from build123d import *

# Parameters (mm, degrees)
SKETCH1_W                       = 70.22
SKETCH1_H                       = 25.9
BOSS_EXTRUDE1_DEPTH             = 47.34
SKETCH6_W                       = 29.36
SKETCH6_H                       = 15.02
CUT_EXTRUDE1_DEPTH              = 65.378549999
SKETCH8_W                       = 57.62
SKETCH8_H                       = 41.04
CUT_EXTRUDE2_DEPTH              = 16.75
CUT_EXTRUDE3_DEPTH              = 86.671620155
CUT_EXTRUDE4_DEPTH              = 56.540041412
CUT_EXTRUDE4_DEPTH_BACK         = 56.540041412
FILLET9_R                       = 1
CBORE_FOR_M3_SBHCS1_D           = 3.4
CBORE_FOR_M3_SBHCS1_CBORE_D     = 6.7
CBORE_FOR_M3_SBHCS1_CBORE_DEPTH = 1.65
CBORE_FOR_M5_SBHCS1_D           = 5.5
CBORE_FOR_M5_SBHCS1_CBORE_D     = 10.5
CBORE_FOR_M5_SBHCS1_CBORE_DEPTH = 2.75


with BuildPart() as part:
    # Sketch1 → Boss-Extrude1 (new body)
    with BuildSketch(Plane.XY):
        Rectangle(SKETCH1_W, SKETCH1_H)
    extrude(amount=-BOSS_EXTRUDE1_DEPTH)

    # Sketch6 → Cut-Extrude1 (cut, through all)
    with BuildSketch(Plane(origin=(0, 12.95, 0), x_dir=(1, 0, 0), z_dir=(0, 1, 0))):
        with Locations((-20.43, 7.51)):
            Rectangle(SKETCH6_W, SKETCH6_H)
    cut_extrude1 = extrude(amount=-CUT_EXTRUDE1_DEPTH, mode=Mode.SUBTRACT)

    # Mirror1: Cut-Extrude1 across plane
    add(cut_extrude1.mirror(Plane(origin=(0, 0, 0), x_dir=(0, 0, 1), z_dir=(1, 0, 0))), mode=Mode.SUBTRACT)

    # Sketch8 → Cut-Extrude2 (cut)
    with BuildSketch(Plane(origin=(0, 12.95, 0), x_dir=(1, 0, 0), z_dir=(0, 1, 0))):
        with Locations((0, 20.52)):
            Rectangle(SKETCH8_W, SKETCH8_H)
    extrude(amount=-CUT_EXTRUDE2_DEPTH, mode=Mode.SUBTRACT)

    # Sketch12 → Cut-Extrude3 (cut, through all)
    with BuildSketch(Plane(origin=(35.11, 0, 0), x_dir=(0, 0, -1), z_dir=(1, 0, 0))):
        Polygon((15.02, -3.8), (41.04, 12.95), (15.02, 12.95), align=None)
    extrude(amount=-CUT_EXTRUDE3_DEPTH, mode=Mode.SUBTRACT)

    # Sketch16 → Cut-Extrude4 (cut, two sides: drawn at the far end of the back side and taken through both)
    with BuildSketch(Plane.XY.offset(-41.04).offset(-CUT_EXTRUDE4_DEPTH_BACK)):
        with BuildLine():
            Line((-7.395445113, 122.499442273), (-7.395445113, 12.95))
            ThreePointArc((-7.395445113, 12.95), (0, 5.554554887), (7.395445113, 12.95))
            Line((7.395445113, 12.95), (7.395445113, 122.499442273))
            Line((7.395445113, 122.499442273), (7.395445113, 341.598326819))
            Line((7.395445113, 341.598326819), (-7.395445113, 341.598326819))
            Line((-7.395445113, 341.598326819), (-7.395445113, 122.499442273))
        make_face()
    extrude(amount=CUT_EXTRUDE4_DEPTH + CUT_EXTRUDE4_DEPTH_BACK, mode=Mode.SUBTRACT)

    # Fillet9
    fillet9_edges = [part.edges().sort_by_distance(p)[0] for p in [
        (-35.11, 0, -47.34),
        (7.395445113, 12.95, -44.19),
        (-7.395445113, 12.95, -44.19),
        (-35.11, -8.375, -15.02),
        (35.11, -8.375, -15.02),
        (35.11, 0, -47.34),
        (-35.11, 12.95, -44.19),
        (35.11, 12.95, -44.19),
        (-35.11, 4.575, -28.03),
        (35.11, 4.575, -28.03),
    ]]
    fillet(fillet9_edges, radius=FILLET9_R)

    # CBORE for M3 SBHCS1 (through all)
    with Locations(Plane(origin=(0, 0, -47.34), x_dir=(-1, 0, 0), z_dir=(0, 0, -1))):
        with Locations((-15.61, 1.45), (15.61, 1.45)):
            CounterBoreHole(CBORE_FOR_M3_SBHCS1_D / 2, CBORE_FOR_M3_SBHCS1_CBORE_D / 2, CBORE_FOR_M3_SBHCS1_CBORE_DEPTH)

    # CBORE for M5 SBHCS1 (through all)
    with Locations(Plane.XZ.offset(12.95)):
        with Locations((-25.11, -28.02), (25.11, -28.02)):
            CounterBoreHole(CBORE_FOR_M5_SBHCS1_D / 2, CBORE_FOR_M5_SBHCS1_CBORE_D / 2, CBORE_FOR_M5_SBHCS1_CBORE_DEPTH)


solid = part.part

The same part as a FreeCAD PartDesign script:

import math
import FreeCAD as App
import Part
import Sketcher
from FreeCAD import Vector
Q = App.Units.Quantity


def edges_at(feature, points):
    """Names of the edges that pass closest to the given points."""
    edges = feature.Shape.Edges
    near = lambda p: min(range(len(edges)), key=lambda i: edges[i].distToShape(Part.Vertex(*p))[0])
    return sorted({f"Edge{near(p) + 1}" for p in points})

doc = App.newDocument("Part")
body = doc.addObject("PartDesign::Body", "Body")

# Sketch on XY plane
sketch1 = doc.addObject("Sketcher::SketchObject", "Sketch")
body.addObject(sketch1)
sketch1.AttachmentSupport = (doc.XY_Plane, [""])
sketch1.MapMode = "FlatFace"
sketch1.addGeometry(Part.LineSegment(Vector(-35.11, 12.95, 0), Vector(-35.11, -12.95, 0)), False)
sketch1.addGeometry(Part.LineSegment(Vector(-35.11, -12.95, 0), Vector(35.11, -12.95, 0)), False)
sketch1.addGeometry(Part.LineSegment(Vector(35.11, -12.95, 0), Vector(35.11, 12.95, 0)), False)
sketch1.addGeometry(Part.LineSegment(Vector(35.11, 12.95, 0), Vector(-35.11, 12.95, 0)), False)
sketch1.addConstraint(Sketcher.Constraint("Coincident", 0, 2, 1, 1))
sketch1.addConstraint(Sketcher.Constraint("Coincident", 1, 2, 2, 1))
sketch1.addConstraint(Sketcher.Constraint("Coincident", 2, 2, 3, 1))
sketch1.addConstraint(Sketcher.Constraint("Coincident", 3, 2, 0, 1))
sketch1.addConstraint(Sketcher.Constraint("Vertical", 0))
sketch1.addConstraint(Sketcher.Constraint("Horizontal", 1))
sketch1.addConstraint(Sketcher.Constraint("Vertical", 2))
sketch1.addConstraint(Sketcher.Constraint("Horizontal", 3))
sketch1.addConstraint(Sketcher.Constraint("Symmetric", 0, 2, 2, 2, -1, 1))
sketch1.addConstraint(Sketcher.Constraint("DistanceY", 0, 2, 0, 1, Q("25.9 mm")))
sketch1.addConstraint(Sketcher.Constraint("DistanceX", 1, 1, 1, 2, Q("70.22 mm")))
pad1 = doc.addObject("PartDesign::Pad", "Pad")
body.addObject(pad1)
pad1.Profile = sketch1
pad1.Length = 47.34
pad1.Reversed = True

# Sketch on XZ plane
sketch2 = doc.addObject("Sketcher::SketchObject", "Sketch001")
body.addObject(sketch2)
sketch2.AttachmentSupport = (doc.XZ_Plane, [""])
sketch2.MapMode = "FlatFace"
sketch2.AttachmentOffset = App.Placement(Vector(0, 0, -12.95), App.Rotation())
sketch2.addGeometry(Part.LineSegment(Vector(-35.11, -15.02, 0), Vector(-35.11, 0, 0)), False)
sketch2.addGeometry(Part.LineSegment(Vector(-35.11, 0, 0), Vector(-5.75, 0, 0)), False)
sketch2.addGeometry(Part.LineSegment(Vector(-5.75, 0, 0), Vector(-5.75, -15.02, 0)), False)
sketch2.addGeometry(Part.LineSegment(Vector(-5.75, -15.02, 0), Vector(-35.11, -15.02, 0)), False)
sketch2.addConstraint(Sketcher.Constraint("Coincident", 0, 2, 1, 1))
sketch2.addConstraint(Sketcher.Constraint("Coincident", 1, 2, 2, 1))
sketch2.addConstraint(Sketcher.Constraint("Coincident", 2, 2, 3, 1))
sketch2.addConstraint(Sketcher.Constraint("Coincident", 3, 2, 0, 1))
sketch2.addConstraint(Sketcher.Constraint("Vertical", 0))
sketch2.addConstraint(Sketcher.Constraint("Horizontal", 1))
sketch2.addConstraint(Sketcher.Constraint("Vertical", 2))
sketch2.addConstraint(Sketcher.Constraint("Horizontal", 3))
sketch2.addConstraint(Sketcher.Constraint("PointOnObject", 0, 2, -1))
sketch2.addConstraint(Sketcher.Constraint("DistanceX", 1, 1, 1, 2, Q("29.36 mm")))
sketch2.addConstraint(Sketcher.Constraint("DistanceY", 0, 1, 0, 2, Q("15.02 mm")))
sketch2.addConstraint(Sketcher.Constraint("DistanceX", 0, 2, -1, 1, Q("35.11 mm")))
pocket1 = doc.addObject("PartDesign::Pocket", "Pocket")
body.addObject(pocket1)
pocket1.Profile = sketch2
pocket1.Type = "ThroughAll"
pocket1.Reversed = True
doc.recompute()

mirrored = doc.addObject("PartDesign::Mirrored", "Mirrored")
body.addObject(mirrored)
mirrored.Originals = [pocket1]
mirrored.MirrorPlane = (doc.YZ_Plane, [""])
body.Tip = mirrored

# Sketch on XZ plane
sketch3 = doc.addObject("Sketcher::SketchObject", "Sketch002")
body.addObject(sketch3)
sketch3.AttachmentSupport = (doc.XZ_Plane, [""])
sketch3.MapMode = "FlatFace"
sketch3.AttachmentOffset = App.Placement(Vector(0, 0, -12.95), App.Rotation())
sketch3.addGeometry(Part.LineSegment(Vector(-28.81, -41.04, 0), Vector(-28.81, 0, 0)), False)
sketch3.addGeometry(Part.LineSegment(Vector(-28.81, 0, 0), Vector(28.81, 0, 0)), False)
sketch3.addGeometry(Part.LineSegment(Vector(28.81, 0, 0), Vector(28.81, -41.04, 0)), False)
sketch3.addGeometry(Part.LineSegment(Vector(28.81, -41.04, 0), Vector(-28.81, -41.04, 0)), False)
sketch3.addConstraint(Sketcher.Constraint("Coincident", 0, 2, 1, 1))
sketch3.addConstraint(Sketcher.Constraint("Coincident", 1, 2, 2, 1))
sketch3.addConstraint(Sketcher.Constraint("Coincident", 2, 2, 3, 1))
sketch3.addConstraint(Sketcher.Constraint("Coincident", 3, 2, 0, 1))
sketch3.addConstraint(Sketcher.Constraint("Vertical", 0))
sketch3.addConstraint(Sketcher.Constraint("Horizontal", 1))
sketch3.addConstraint(Sketcher.Constraint("Vertical", 2))
sketch3.addConstraint(Sketcher.Constraint("Horizontal", 3))
sketch3.addConstraint(Sketcher.Constraint("Symmetric", 0, 2, 1, 2, -1, 1))
sketch3.addConstraint(Sketcher.Constraint("DistanceX", 1, 1, 1, 2, Q("57.62 mm")))
sketch3.addConstraint(Sketcher.Constraint("DistanceY", 0, 1, 0, 2, Q("41.04 mm")))
pocket2 = doc.addObject("PartDesign::Pocket", "Pocket001")
body.addObject(pocket2)
pocket2.Profile = sketch3
pocket2.Length = 16.75
pocket2.Reversed = True

# Sketch on YZ plane
sketch4 = doc.addObject("Sketcher::SketchObject", "Sketch003")
body.addObject(sketch4)
sketch4.AttachmentSupport = (doc.YZ_Plane, [""])
sketch4.MapMode = "FlatFace"
sketch4.AttachmentOffset = App.Placement(Vector(0, 0, 35.11), App.Rotation())
sketch4.addGeometry(Part.LineSegment(Vector(-3.8, -15.02, 0), Vector(12.95, -41.04, 0)), False)
sketch4.addGeometry(Part.LineSegment(Vector(12.95, -41.04, 0), Vector(12.95, -15.02, 0)), False)
sketch4.addGeometry(Part.LineSegment(Vector(12.95, -15.02, 0), Vector(-3.8, -15.02, 0)), False)
sketch4.addConstraint(Sketcher.Constraint("Coincident", 0, 2, 1, 1))
sketch4.addConstraint(Sketcher.Constraint("Coincident", 1, 2, 2, 1))
sketch4.addConstraint(Sketcher.Constraint("Coincident", 2, 2, 0, 1))
sketch4.addConstraint(Sketcher.Constraint("Vertical", 1))
sketch4.addConstraint(Sketcher.Constraint("Horizontal", 2))
sketch4.addConstraint(Sketcher.Constraint("DistanceX", 2, 2, 2, 1, Q("16.75 mm")))
sketch4.addConstraint(Sketcher.Constraint("DistanceY", 1, 1, 1, 2, Q("26.02 mm")))
sketch4.addConstraint(Sketcher.Constraint("DistanceX", 2, 2, -1, 1, Q("3.8 mm")))
sketch4.addConstraint(Sketcher.Constraint("DistanceY", 0, 2, -1, 1, Q("41.04 mm")))
pocket3 = doc.addObject("PartDesign::Pocket", "Pocket002")
body.addObject(pocket3)
pocket3.Profile = sketch4
pocket3.Type = "ThroughAll"

# Sketch on XY plane
sketch5 = doc.addObject("Sketcher::SketchObject", "Sketch004")
body.addObject(sketch5)
sketch5.AttachmentSupport = (doc.XY_Plane, [""])
sketch5.MapMode = "FlatFace"
sketch5.AttachmentOffset = App.Placement(Vector(0, 0, -41.04), App.Rotation())
sketch5.addGeometry(Part.ArcOfCircle(Part.Circle(Vector(0, 12.95, 0), Vector(0, 0, 1), 7.395445), math.radians(180), math.radians(360)), False)
sketch5.addGeometry(Part.LineSegment(Vector(7.395445, 12.95, 0), Vector(7.395445, 341.598327, 0)), False)
sketch5.addGeometry(Part.LineSegment(Vector(7.395445, 341.598327, 0), Vector(-7.395445, 341.598327, 0)), False)
sketch5.addGeometry(Part.LineSegment(Vector(-7.395445, 341.598327, 0), Vector(-7.395445, 12.95, 0)), False)
sketch5.addConstraint(Sketcher.Constraint("Tangent", 0, 2, 1, 1))
sketch5.addConstraint(Sketcher.Constraint("Coincident", 1, 2, 2, 1))
sketch5.addConstraint(Sketcher.Constraint("Coincident", 2, 2, 3, 1))
sketch5.addConstraint(Sketcher.Constraint("Tangent", 3, 2, 0, 1))
sketch5.addConstraint(Sketcher.Constraint("Vertical", 1))
sketch5.addConstraint(Sketcher.Constraint("Horizontal", 2))
sketch5.addConstraint(Sketcher.Constraint("Vertical", 3))
sketch5.addConstraint(Sketcher.Constraint("PointOnObject", 0, 3, -2))
sketch5.addConstraint(Sketcher.Constraint("DistanceY", -1, 1, 0, 3, Q("12.95 mm")))
sketch5.addConstraint(Sketcher.Constraint("Radius", 0, Q("7.395445 mm")))
sketch5.addConstraint(Sketcher.Constraint("DistanceY", 1, 1, 1, 2, Q("328.648327 mm")))
pocket4 = doc.addObject("PartDesign::Pocket", "Pocket003")
body.addObject(pocket4)
pocket4.Profile = sketch5
pocket4.Type = "ThroughAll"
pocket4.Midplane = True
doc.recompute()

fillet = doc.addObject("PartDesign::Fillet", "Fillet")
body.addObject(fillet)
fillet.Base = (pocket4, edges_at(pocket4, [
    (-35.11, 0, -47.34),
    (7.395, 12.95, -44.19),
    (-7.395, 12.95, -44.19),
    (-35.11, -8.375, -15.02),
    (35.11, -8.375, -15.02),
    (35.11, 0, -47.34),
    (-35.11, 12.95, -44.19),
    (35.11, 12.95, -44.19),
    (-35.11, 4.575, -28.03),
    (35.11, 4.575, -28.03),
]))
fillet.Radius = 1

# Sketch on XY plane
sketch6 = doc.addObject("Sketcher::SketchObject", "Sketch005")
body.addObject(sketch6)
sketch6.AttachmentSupport = (doc.XY_Plane, [""])
sketch6.MapMode = "FlatFace"
sketch6.AttachmentOffset = App.Placement(Vector(0, 0, -47.34), App.Rotation())
sketch6.addGeometry(Part.Circle(Vector(15.61, 1.45, 0), Vector(0, 0, 1), 1.7), False)
sketch6.addGeometry(Part.Circle(Vector(-15.61, 1.45, 0), Vector(0, 0, 1), 1.7), False)
sketch6.addConstraint(Sketcher.Constraint("Equal", 0, 1))
sketch6.addConstraint(Sketcher.Constraint("Symmetric", 0, 3, 1, 3, -2))
sketch6.addConstraint(Sketcher.Constraint("Diameter", 0, Q("3.4 mm")))
sketch6.addConstraint(Sketcher.Constraint("DistanceX", -1, 1, 0, 3, Q("15.61 mm")))
sketch6.addConstraint(Sketcher.Constraint("DistanceY", -1, 1, 0, 3, Q("1.45 mm")))
doc.recompute()
hole = doc.addObject("PartDesign::Hole", "Hole")
body.addObject(hole)
hole.Profile = sketch6
hole.ThreadType = "None"
hole.Diameter = 3.4
hole.DepthType = "ThroughAll"
hole.HoleCutType = "Counterbore"
hole.HoleCutDiameter = 6.7
hole.HoleCutDepth = 1.65
hole.Reversed = True

# Sketch on XZ plane
sketch7 = doc.addObject("Sketcher::SketchObject", "Sketch006")
body.addObject(sketch7)
sketch7.AttachmentSupport = (doc.XZ_Plane, [""])
sketch7.MapMode = "FlatFace"
sketch7.AttachmentOffset = App.Placement(Vector(0, 0, 12.95), App.Rotation())
sketch7.addGeometry(Part.Circle(Vector(-25.11, -28.02, 0), Vector(0, 0, 1), 2.75), False)
sketch7.addGeometry(Part.Circle(Vector(25.11, -28.02, 0), Vector(0, 0, 1), 2.75), False)
sketch7.addConstraint(Sketcher.Constraint("Equal", 0, 1))
sketch7.addConstraint(Sketcher.Constraint("Symmetric", 0, 3, 1, 3, -2))
sketch7.addConstraint(Sketcher.Constraint("Diameter", 0, Q("5.5 mm")))
sketch7.addConstraint(Sketcher.Constraint("DistanceX", 0, 3, -1, 1, Q("25.11 mm")))
sketch7.addConstraint(Sketcher.Constraint("DistanceY", 0, 3, -1, 1, Q("28.02 mm")))
doc.recompute()
hole2 = doc.addObject("PartDesign::Hole", "Hole001")
body.addObject(hole2)
hole2.Profile = sketch7
hole2.ThreadType = "None"
hole2.Diameter = 5.5
hole2.DepthType = "ThroughAll"
hole2.HoleCutType = "Counterbore"
hole2.HoleCutDiameter = 10.5
hole2.HoleCutDepth = 2.75

doc.recompute()
